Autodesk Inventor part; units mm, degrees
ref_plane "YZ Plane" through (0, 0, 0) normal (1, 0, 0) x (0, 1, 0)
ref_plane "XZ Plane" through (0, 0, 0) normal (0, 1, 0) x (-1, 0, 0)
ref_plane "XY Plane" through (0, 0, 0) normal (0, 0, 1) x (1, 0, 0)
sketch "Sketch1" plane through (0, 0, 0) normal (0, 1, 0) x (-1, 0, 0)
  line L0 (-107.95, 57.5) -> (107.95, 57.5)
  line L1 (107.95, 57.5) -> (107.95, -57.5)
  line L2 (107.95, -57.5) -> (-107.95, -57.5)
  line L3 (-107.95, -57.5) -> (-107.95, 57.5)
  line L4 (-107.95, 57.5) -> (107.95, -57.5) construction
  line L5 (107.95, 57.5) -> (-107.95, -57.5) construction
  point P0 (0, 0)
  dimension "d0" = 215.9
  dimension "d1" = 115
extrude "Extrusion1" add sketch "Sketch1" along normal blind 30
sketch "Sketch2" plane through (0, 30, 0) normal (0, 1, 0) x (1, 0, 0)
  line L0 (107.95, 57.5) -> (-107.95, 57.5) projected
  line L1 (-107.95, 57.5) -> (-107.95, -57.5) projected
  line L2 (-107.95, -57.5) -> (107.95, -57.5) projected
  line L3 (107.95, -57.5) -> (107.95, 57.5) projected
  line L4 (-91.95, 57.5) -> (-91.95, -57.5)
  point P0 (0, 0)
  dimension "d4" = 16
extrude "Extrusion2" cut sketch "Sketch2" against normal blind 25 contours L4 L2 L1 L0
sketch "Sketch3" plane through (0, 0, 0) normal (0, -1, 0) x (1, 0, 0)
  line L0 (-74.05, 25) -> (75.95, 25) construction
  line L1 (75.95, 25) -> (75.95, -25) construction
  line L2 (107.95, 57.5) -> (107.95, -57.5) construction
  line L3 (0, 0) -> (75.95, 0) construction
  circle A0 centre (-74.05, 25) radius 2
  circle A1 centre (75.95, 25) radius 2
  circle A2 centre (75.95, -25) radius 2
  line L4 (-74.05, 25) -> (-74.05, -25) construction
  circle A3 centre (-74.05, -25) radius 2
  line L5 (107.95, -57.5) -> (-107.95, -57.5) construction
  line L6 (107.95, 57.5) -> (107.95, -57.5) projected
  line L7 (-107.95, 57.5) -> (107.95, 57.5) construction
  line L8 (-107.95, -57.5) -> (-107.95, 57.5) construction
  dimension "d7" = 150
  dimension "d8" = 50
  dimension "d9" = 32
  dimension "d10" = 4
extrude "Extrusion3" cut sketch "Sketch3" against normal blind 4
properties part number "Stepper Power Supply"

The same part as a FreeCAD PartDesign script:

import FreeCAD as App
import Part
import Sketcher

V = App.Vector


def add_polygon(sketch, points):
    """Adds a closed chain of lines whose ends are joined by coincident constraints."""
    first, n = sketch.GeometryCount, len(points)
    for a, b in zip(points, points[1:] + points[:1]):
        sketch.addGeometry(Part.LineSegment(App.Vector(*a, 0), App.Vector(*b, 0)), False)
    for i in range(n):
        sketch.addConstraint(Sketcher.Constraint("Coincident", first + i, 2, first + (i + 1) % n, 1))

doc = App.newDocument("Part")
body = doc.addObject("PartDesign::Body", "Body")

# Sketch on XZ plane
sketch1 = body.newObject("Sketcher::SketchObject", "Sketch")
sketch1.AttachmentSupport = (doc.getObject("XZ_Plane"), [""])
sketch1.MapMode = "FlatFace"
add_polygon(sketch1, [(-107.95, 57.5), (107.95, 57.5), (107.95, -57.5), (-107.95, -57.5)])  # lines 0-3
sketch1.addConstraint([
    Sketcher.Constraint("Horizontal", 0),
    Sketcher.Constraint("Vertical", 1),
    Sketcher.Constraint("Horizontal", 2),
    Sketcher.Constraint("Vertical", 3),
    Sketcher.Constraint("Symmetric", 0, 2, 2, 2, -1, 1),
    Sketcher.Constraint("DistanceY", 1, 2, 1, 1, 115.0),
    Sketcher.Constraint("DistanceX", 0, 1, 0, 2, 215.9),
])
pad1 = body.newObject("PartDesign::Pad", "Pad")
pad1.Profile = sketch1
pad1.Length = 30
pad1.Reversed = True

# Sketch on XZ plane
sketch2 = body.newObject("Sketcher::SketchObject", "Sketch001")
sketch2.AttachmentSupport = (doc.getObject("XZ_Plane"), [""])
sketch2.MapMode = "FlatFace"
sketch2.AttachmentOffset = App.Placement(V(0, 0, -30), App.Rotation())
add_polygon(sketch2, [(-91.95, 57.5), (-91.95, -57.5), (-107.95, -57.5), (-107.95, 57.5)])  # lines 0-3
sketch2.addConstraint([
    Sketcher.Constraint("Vertical", 0),
    Sketcher.Constraint("Horizontal", 1),
    Sketcher.Constraint("Vertical", 2),
    Sketcher.Constraint("Horizontal", 3),
    Sketcher.Constraint("DistanceX", 1, 2, 1, 1, 16.0),
    Sketcher.Constraint("DistanceY", 0, 2, 0, 1, 115.0),
    Sketcher.Constraint("DistanceY", 0, 2, -1, 1, 57.5),
    Sketcher.Constraint("DistanceX", 0, 2, -1, 1, 91.95),
])
pocket1 = body.newObject("PartDesign::Pocket", "Pocket")
pocket1.Profile = sketch2
pocket1.Length = 25
pocket1.Reversed = True

# Sketch on XZ plane
sketch3 = body.newObject("Sketcher::SketchObject", "Sketch002")
sketch3.AttachmentSupport = (doc.getObject("XZ_Plane"), [""])
sketch3.MapMode = "FlatFace"
sketch3.addGeometry([
    Part.Circle(V(-74.05, 25, 0), V(0, 0, 1), 2),
    Part.Circle(V(75.95, 25, 0), V(0, 0, 1), 2),
    Part.Circle(V(75.95, -25, 0), V(0, 0, 1), 2),
    Part.Circle(V(-74.05, -25, 0), V(0, 0, 1), 2),
], False)
sketch3.addConstraint([
    Sketcher.Constraint("Equal", 0, 1),
    Sketcher.Constraint("Equal", 1, 2),
    Sketcher.Constraint("Equal", 2, 3),
    Sketcher.Constraint("Symmetric", 1, 3, 2, 3, -1),
    Sketcher.Constraint("Symmetric", 0, 3, 3, 3, -1),
    Sketcher.Constraint("Horizontal", 0, 3, 1, 3),
    Sketcher.Constraint("Diameter", 0, 4.0),
    Sketcher.Constraint("DistanceX", 0, 3, 1, 3, 150.0),
    Sketcher.Constraint("DistanceY", 2, 3, 1, 3, 50.0),
    Sketcher.Constraint("DistanceX", 0, 3, -1, 1, 74.05),
])
pocket2 = body.newObject("PartDesign::Pocket", "Pocket001")
pocket2.Profile = sketch3
pocket2.Length = 4

doc.recompute()
